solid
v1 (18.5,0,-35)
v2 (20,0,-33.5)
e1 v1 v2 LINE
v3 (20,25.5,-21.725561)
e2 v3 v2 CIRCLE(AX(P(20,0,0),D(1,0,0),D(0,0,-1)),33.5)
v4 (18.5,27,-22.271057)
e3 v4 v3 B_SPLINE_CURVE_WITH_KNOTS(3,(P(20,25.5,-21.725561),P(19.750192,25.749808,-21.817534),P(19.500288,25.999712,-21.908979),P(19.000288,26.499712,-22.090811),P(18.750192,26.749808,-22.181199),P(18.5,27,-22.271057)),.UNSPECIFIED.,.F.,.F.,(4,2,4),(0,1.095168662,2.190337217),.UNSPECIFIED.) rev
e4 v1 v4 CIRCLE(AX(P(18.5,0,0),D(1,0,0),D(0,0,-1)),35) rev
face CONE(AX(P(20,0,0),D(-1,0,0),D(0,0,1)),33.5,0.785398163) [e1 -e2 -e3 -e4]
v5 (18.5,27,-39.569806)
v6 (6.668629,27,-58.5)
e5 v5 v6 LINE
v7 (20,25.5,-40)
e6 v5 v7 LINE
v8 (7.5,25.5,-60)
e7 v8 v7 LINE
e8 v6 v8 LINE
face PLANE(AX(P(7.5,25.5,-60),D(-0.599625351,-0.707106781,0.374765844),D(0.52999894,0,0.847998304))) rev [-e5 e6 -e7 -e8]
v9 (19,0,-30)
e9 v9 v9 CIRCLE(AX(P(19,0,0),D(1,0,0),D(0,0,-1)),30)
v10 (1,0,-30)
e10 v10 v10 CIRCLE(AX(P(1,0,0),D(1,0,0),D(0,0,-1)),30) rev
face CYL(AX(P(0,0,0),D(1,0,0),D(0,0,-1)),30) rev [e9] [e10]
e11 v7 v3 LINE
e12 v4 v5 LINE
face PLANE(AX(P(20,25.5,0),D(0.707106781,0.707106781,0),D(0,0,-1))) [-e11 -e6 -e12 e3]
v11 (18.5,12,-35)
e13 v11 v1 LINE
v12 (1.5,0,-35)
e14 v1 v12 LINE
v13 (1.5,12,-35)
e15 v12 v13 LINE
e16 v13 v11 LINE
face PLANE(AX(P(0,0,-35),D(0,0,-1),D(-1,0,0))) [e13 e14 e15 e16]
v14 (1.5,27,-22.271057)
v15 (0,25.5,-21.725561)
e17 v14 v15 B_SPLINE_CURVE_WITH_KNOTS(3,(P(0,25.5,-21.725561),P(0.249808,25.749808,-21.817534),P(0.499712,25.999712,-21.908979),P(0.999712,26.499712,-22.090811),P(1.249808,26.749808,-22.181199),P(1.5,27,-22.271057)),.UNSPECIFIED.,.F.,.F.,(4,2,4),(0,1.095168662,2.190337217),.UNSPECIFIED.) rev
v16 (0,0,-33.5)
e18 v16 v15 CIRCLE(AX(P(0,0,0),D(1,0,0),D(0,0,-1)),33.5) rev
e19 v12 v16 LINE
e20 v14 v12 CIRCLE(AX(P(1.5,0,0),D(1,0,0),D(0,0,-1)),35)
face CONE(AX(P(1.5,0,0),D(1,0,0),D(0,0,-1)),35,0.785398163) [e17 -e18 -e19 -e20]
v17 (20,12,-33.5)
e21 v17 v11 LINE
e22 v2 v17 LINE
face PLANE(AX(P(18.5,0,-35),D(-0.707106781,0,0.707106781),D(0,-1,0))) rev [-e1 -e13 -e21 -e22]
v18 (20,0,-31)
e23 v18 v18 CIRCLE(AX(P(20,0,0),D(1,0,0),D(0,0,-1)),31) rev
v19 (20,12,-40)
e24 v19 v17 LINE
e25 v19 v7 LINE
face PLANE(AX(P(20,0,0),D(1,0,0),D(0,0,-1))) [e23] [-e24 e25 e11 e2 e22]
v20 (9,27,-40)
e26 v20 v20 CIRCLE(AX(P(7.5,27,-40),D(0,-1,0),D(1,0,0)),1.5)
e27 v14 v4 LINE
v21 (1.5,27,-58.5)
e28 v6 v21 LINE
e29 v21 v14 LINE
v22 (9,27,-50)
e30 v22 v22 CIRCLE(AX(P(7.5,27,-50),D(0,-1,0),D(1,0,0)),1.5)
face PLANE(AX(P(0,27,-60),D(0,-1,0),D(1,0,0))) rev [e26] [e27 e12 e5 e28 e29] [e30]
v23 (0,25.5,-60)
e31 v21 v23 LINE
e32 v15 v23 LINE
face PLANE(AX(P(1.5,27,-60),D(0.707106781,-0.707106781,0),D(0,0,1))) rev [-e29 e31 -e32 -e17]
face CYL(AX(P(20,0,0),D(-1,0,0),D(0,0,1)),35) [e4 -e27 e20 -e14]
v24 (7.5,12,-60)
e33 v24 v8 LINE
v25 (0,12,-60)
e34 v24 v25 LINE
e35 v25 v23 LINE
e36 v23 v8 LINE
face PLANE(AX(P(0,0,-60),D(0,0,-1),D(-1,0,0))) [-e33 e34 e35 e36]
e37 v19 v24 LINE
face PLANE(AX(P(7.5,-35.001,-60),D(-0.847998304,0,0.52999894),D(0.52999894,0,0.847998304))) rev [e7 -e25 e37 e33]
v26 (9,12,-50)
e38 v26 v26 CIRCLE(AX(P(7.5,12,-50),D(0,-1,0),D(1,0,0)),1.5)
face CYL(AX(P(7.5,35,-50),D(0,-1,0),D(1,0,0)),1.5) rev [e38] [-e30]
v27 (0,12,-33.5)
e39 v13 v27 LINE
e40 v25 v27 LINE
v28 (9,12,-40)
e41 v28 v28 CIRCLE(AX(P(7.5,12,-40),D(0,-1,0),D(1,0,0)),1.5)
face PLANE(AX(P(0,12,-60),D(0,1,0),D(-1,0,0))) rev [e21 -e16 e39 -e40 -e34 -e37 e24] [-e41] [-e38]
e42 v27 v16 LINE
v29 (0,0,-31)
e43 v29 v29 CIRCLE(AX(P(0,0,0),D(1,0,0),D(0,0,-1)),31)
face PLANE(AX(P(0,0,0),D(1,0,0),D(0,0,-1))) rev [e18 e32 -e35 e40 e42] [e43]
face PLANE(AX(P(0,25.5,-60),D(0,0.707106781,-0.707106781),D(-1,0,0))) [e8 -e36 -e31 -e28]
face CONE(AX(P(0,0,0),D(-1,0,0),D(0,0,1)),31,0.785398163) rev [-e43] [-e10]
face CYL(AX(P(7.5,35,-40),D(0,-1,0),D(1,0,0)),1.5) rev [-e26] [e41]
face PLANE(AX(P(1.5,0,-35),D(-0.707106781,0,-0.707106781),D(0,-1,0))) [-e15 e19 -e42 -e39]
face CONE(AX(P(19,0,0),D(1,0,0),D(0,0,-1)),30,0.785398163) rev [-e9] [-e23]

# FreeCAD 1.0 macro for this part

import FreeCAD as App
import Part
import Sketcher
Q = App.Units.Quantity


def edges_at(feature, points):
    """Names of the edges that pass closest to the given points."""
    edges = feature.Shape.Edges
    near = lambda p: min(range(len(edges)), key=lambda i: edges[i].distToShape(Part.Vertex(*p))[0])
    return sorted({f"Edge{near(p) + 1}" for p in points})


def add_polygon(sketch, points):
    """Adds a closed chain of lines whose ends are joined by coincident constraints."""
    first, n = sketch.GeometryCount, len(points)
    for a, b in zip(points, points[1:] + points[:1]):
        sketch.addGeometry(Part.LineSegment(App.Vector(*a, 0), App.Vector(*b, 0)), False)
    for i in range(n):
        sketch.addConstraint(Sketcher.Constraint("Coincident", first + i, 2, first + (i + 1) % n, 1))

doc = App.newDocument("Part")
params = doc.addObject("Spreadsheet::Sheet", "Params")
for row, (alias, value) in enumerate([
    ("sketch1_diameter", "70 mm"),
    ("pad1_length", "20 mm"),
    ("sketch2_diameter", "60 mm"),
    ("sketch3_width", "20 mm"),
    ("sketch3_height", "15 mm"),
    ("pad2_length", "50 mm"),
    ("sketch4_width", "20 mm"),
    ("sketch4_height", "12 mm"),
    ("pad3_length", "2.121436 mm"),
    ("sketch5_diameter", "60 mm"),
    ("sketch6_height", "20 mm"),
    ("sketch6_width", "12.5 mm"),
    ("sketch7_diameter", "3 mm"),
    ("chamfer_size", "1 mm"),
    ("chamfer2_size", "1.5 mm"),
], start=1):
    params.set(f"A{row}", alias)
    params.set(f"B{row}", "=" + value)
    params.setAlias(f"B{row}", alias)

body = doc.addObject("PartDesign::Body", "Body")

# Sketch on YZ plane
sketch1 = body.newObject("Sketcher::SketchObject", "Sketch")
sketch1.AttachmentSupport = (doc.getObject("YZ_Plane"), [""])
sketch1.MapMode = "FlatFace"
sketch1.addGeometry(Part.Circle(App.Vector(0, 0, 0), App.Vector(0, 0, 1), 35), False)
sketch1.addConstraint([
    Sketcher.Constraint("Coincident", 0, 3, -1, 1),
    Sketcher.Constraint("Diameter", 0, Q("70 mm")),
])
sketch1.setExpression("Constraints[1]", "Params.sketch1_diameter")
pad1 = body.newObject("PartDesign::Pad", "Pad")
pad1.Profile = sketch1
pad1.setExpression("Length", "Params.pad1_length")

# Sketch on YZ plane
sketch2 = body.newObject("Sketcher::SketchObject", "Sketch001")
sketch2.AttachmentSupport = (doc.getObject("YZ_Plane"), [""])
sketch2.MapMode = "FlatFace"
sketch2.AttachmentOffset = App.Placement(App.Vector(0, 0, 20), App.Rotation())
sketch2.addGeometry(Part.Circle(App.Vector(0, 0, 0), App.Vector(0, 0, 1), 30), False)
sketch2.addConstraint([
    Sketcher.Constraint("Coincident", 0, 3, -1, 1),
    Sketcher.Constraint("Diameter", 0, Q("60 mm")),
])
sketch2.setExpression("Constraints[1]", "Params.sketch2_diameter")
pocket1 = body.newObject("PartDesign::Pocket", "Pocket")
pocket1.Profile = sketch2
pocket1.Type = "ThroughAll"

# Sketch on XY plane
sketch3 = body.newObject("Sketcher::SketchObject", "Sketch002")
sketch3.AttachmentSupport = (doc.getObject("XY_Plane"), [""])
sketch3.MapMode = "FlatFace"
sketch3.AttachmentOffset = App.Placement(App.Vector(0, 0, -35), App.Rotation())
add_polygon(sketch3, [(20, 27), (20, 12), (0, 12), (0, 27)])  # lines 0-3
sketch3.addConstraint([
    Sketcher.Constraint("Vertical", 0),
    Sketcher.Constraint("Horizontal", 1),
    Sketcher.Constraint("Vertical", 2),
    Sketcher.Constraint("Horizontal", 3),
    Sketcher.Constraint("PointOnObject", 1, 2, -2),
    Sketcher.Constraint("DistanceX", 1, 2, 1, 1, Q("20 mm")),
    Sketcher.Constraint("DistanceY", 0, 2, 0, 1, Q("15 mm")),
    Sketcher.Constraint("DistanceY", -1, 1, 0, 2, Q("12 mm")),
])
sketch3.setExpression("Constraints[9]", "Params.sketch3_width")
sketch3.setExpression("Constraints[10]", "Params.sketch3_height")
pad2 = body.newObject("PartDesign::Pad", "Pad001")
pad2.Profile = sketch3
pad2.setExpression("Length", "Params.pad2_length")
pad2.Midplane = True

# Sketch on XY plane
sketch4 = body.newObject("Sketcher::SketchObject", "Sketch003")
sketch4.AttachmentSupport = (doc.getObject("XY_Plane"), [""])
sketch4.MapMode = "FlatFace"
sketch4.AttachmentOffset = App.Placement(App.Vector(0, 0, -35), App.Rotation())
add_polygon(sketch4, [(20, 12), (20, 0), (0, 0), (0, 12)])  # lines 0-3
sketch4.addConstraint([
    Sketcher.Constraint("Vertical", 0),
    Sketcher.Constraint("Horizontal", 1),
    Sketcher.Constraint("Vertical", 2),
    Sketcher.Constraint("Horizontal", 3),
    Sketcher.Constraint("Coincident", 1, 2, -1, 1),
    Sketcher.Constraint("DistanceX", 1, 2, 1, 1, Q("20 mm")),
    Sketcher.Constraint("DistanceY", 0, 2, 0, 1, Q("12 mm")),
])
sketch4.setExpression("Constraints[9]", "Params.sketch4_width")
sketch4.setExpression("Constraints[10]", "Params.sketch4_height")
pad3 = body.newObject("PartDesign::Pad", "Pad002")
pad3.Profile = sketch4
pad3.setExpression("Length", "Params.pad3_length")

# Sketch on YZ plane
sketch5 = body.newObject("Sketcher::SketchObject", "Sketch004")
sketch5.AttachmentSupport = (doc.getObject("YZ_Plane"), [""])
sketch5.MapMode = "FlatFace"
sketch5.AttachmentOffset = App.Placement(App.Vector(0, 0, 20), App.Rotation())
sketch5.addGeometry(Part.Circle(App.Vector(0, 0, 0), App.Vector(0, 0, 1), 30), False)
sketch5.addConstraint([
    Sketcher.Constraint("Coincident", 0, 3, -1, 1),
    Sketcher.Constraint("Diameter", 0, Q("60 mm")),
])
sketch5.setExpression("Constraints[1]", "Params.sketch5_diameter")
pocket2 = body.newObject("PartDesign::Pocket", "Pocket001")
pocket2.Profile = sketch5
pocket2.Type = "ThroughAll"

# Sketch on XZ plane
sketch6 = body.newObject("Sketcher::SketchObject", "Sketch005")
sketch6.AttachmentSupport = (doc.getObject("XZ_Plane"), [""])
sketch6.MapMode = "FlatFace"
sketch6.AttachmentOffset = App.Placement(App.Vector(0, 0, -27), App.Rotation())
add_polygon(sketch6, [(8, -60), (20, -40), (20, -60)])  # lines 0-2
sketch6.addConstraint([
    Sketcher.Constraint("Vertical", 1),
    Sketcher.Constraint("Horizontal", 2),
    Sketcher.Constraint("DistanceY", 1, 2, 1, 1, Q("20 mm")),
    Sketcher.Constraint("DistanceX", 2, 2, 2, 1, Q("12.5 mm")),
    Sketcher.Constraint("DistanceX", -1, 1, 0, 2, Q("20 mm")),
    Sketcher.Constraint("DistanceY", 0, 2, -1, 1, Q("40 mm")),
])
sketch6.setExpression("Constraints[5]", "Params.sketch6_height")
sketch6.setExpression("Constraints[6]", "Params.sketch6_width")
pocket3 = body.newObject("PartDesign::Pocket", "Pocket002")
pocket3.Profile = sketch6
pocket3.Type = "UpToFirst"
pocket3.Reversed = True

# Sketch on XZ plane
sketch7 = body.newObject("Sketcher::SketchObject", "Sketch006")
sketch7.AttachmentSupport = (doc.getObject("XZ_Plane"), [""])
sketch7.MapMode = "FlatFace"
sketch7.AttachmentOffset = App.Placement(App.Vector(0, 0, -12), App.Rotation())
sketch7.addGeometry([
    Part.Circle(App.Vector(7.5, -40, 0), App.Vector(0, 0, 1), 1.5),
    Part.Circle(App.Vector(7.5, -50, 0), App.Vector(0, 0, 1), 1.5),
], False)
sketch7.addConstraint([
    Sketcher.Constraint("Equal", 0, 1),
    Sketcher.Constraint("Vertical", 0, 3, 1, 3),
    Sketcher.Constraint("Diameter", 0, Q("3 mm")),
    Sketcher.Constraint("DistanceY", 0, 3, -1, 1, Q("40 mm")),
    Sketcher.Constraint("DistanceY", 1, 3, -1, 1, Q("50 mm")),
    Sketcher.Constraint("DistanceX", -1, 1, 0, 3, Q("7.5 mm")),
])
sketch7.setExpression("Constraints[2]", "Params.sketch7_diameter")
pocket4 = body.newObject("PartDesign::Pocket", "Pocket003")
pocket4.Profile = sketch7
pocket4.Type = "ThroughAll"
doc.recompute()

chamfer = body.newObject("PartDesign::Chamfer", "Chamfer")
chamfer.Base = (pocket4, edges_at(pocket4, [(0, -12, 27.495), (20, -12, 27.495)]))
chamfer.setExpression("Size", "Params.chamfer_size")
doc.recompute()

chamfer2 = body.newObject("PartDesign::Chamfer", "Chamfer001")
chamfer2.Base = (chamfer, edges_at(chamfer, [
    (0, -14.925, 31.658),
    (20, -14.925, 31.658),
    (0, 27, -41.136),
    (3.75, 27, -60),
    (20, 6, -35),
    (0, 6, -35),
    (20, 27, -31.136),
    (13.75, 27, -50),
]))
chamfer2.setExpression("Size", "Params.chamfer2_size")

doc.recompute()
